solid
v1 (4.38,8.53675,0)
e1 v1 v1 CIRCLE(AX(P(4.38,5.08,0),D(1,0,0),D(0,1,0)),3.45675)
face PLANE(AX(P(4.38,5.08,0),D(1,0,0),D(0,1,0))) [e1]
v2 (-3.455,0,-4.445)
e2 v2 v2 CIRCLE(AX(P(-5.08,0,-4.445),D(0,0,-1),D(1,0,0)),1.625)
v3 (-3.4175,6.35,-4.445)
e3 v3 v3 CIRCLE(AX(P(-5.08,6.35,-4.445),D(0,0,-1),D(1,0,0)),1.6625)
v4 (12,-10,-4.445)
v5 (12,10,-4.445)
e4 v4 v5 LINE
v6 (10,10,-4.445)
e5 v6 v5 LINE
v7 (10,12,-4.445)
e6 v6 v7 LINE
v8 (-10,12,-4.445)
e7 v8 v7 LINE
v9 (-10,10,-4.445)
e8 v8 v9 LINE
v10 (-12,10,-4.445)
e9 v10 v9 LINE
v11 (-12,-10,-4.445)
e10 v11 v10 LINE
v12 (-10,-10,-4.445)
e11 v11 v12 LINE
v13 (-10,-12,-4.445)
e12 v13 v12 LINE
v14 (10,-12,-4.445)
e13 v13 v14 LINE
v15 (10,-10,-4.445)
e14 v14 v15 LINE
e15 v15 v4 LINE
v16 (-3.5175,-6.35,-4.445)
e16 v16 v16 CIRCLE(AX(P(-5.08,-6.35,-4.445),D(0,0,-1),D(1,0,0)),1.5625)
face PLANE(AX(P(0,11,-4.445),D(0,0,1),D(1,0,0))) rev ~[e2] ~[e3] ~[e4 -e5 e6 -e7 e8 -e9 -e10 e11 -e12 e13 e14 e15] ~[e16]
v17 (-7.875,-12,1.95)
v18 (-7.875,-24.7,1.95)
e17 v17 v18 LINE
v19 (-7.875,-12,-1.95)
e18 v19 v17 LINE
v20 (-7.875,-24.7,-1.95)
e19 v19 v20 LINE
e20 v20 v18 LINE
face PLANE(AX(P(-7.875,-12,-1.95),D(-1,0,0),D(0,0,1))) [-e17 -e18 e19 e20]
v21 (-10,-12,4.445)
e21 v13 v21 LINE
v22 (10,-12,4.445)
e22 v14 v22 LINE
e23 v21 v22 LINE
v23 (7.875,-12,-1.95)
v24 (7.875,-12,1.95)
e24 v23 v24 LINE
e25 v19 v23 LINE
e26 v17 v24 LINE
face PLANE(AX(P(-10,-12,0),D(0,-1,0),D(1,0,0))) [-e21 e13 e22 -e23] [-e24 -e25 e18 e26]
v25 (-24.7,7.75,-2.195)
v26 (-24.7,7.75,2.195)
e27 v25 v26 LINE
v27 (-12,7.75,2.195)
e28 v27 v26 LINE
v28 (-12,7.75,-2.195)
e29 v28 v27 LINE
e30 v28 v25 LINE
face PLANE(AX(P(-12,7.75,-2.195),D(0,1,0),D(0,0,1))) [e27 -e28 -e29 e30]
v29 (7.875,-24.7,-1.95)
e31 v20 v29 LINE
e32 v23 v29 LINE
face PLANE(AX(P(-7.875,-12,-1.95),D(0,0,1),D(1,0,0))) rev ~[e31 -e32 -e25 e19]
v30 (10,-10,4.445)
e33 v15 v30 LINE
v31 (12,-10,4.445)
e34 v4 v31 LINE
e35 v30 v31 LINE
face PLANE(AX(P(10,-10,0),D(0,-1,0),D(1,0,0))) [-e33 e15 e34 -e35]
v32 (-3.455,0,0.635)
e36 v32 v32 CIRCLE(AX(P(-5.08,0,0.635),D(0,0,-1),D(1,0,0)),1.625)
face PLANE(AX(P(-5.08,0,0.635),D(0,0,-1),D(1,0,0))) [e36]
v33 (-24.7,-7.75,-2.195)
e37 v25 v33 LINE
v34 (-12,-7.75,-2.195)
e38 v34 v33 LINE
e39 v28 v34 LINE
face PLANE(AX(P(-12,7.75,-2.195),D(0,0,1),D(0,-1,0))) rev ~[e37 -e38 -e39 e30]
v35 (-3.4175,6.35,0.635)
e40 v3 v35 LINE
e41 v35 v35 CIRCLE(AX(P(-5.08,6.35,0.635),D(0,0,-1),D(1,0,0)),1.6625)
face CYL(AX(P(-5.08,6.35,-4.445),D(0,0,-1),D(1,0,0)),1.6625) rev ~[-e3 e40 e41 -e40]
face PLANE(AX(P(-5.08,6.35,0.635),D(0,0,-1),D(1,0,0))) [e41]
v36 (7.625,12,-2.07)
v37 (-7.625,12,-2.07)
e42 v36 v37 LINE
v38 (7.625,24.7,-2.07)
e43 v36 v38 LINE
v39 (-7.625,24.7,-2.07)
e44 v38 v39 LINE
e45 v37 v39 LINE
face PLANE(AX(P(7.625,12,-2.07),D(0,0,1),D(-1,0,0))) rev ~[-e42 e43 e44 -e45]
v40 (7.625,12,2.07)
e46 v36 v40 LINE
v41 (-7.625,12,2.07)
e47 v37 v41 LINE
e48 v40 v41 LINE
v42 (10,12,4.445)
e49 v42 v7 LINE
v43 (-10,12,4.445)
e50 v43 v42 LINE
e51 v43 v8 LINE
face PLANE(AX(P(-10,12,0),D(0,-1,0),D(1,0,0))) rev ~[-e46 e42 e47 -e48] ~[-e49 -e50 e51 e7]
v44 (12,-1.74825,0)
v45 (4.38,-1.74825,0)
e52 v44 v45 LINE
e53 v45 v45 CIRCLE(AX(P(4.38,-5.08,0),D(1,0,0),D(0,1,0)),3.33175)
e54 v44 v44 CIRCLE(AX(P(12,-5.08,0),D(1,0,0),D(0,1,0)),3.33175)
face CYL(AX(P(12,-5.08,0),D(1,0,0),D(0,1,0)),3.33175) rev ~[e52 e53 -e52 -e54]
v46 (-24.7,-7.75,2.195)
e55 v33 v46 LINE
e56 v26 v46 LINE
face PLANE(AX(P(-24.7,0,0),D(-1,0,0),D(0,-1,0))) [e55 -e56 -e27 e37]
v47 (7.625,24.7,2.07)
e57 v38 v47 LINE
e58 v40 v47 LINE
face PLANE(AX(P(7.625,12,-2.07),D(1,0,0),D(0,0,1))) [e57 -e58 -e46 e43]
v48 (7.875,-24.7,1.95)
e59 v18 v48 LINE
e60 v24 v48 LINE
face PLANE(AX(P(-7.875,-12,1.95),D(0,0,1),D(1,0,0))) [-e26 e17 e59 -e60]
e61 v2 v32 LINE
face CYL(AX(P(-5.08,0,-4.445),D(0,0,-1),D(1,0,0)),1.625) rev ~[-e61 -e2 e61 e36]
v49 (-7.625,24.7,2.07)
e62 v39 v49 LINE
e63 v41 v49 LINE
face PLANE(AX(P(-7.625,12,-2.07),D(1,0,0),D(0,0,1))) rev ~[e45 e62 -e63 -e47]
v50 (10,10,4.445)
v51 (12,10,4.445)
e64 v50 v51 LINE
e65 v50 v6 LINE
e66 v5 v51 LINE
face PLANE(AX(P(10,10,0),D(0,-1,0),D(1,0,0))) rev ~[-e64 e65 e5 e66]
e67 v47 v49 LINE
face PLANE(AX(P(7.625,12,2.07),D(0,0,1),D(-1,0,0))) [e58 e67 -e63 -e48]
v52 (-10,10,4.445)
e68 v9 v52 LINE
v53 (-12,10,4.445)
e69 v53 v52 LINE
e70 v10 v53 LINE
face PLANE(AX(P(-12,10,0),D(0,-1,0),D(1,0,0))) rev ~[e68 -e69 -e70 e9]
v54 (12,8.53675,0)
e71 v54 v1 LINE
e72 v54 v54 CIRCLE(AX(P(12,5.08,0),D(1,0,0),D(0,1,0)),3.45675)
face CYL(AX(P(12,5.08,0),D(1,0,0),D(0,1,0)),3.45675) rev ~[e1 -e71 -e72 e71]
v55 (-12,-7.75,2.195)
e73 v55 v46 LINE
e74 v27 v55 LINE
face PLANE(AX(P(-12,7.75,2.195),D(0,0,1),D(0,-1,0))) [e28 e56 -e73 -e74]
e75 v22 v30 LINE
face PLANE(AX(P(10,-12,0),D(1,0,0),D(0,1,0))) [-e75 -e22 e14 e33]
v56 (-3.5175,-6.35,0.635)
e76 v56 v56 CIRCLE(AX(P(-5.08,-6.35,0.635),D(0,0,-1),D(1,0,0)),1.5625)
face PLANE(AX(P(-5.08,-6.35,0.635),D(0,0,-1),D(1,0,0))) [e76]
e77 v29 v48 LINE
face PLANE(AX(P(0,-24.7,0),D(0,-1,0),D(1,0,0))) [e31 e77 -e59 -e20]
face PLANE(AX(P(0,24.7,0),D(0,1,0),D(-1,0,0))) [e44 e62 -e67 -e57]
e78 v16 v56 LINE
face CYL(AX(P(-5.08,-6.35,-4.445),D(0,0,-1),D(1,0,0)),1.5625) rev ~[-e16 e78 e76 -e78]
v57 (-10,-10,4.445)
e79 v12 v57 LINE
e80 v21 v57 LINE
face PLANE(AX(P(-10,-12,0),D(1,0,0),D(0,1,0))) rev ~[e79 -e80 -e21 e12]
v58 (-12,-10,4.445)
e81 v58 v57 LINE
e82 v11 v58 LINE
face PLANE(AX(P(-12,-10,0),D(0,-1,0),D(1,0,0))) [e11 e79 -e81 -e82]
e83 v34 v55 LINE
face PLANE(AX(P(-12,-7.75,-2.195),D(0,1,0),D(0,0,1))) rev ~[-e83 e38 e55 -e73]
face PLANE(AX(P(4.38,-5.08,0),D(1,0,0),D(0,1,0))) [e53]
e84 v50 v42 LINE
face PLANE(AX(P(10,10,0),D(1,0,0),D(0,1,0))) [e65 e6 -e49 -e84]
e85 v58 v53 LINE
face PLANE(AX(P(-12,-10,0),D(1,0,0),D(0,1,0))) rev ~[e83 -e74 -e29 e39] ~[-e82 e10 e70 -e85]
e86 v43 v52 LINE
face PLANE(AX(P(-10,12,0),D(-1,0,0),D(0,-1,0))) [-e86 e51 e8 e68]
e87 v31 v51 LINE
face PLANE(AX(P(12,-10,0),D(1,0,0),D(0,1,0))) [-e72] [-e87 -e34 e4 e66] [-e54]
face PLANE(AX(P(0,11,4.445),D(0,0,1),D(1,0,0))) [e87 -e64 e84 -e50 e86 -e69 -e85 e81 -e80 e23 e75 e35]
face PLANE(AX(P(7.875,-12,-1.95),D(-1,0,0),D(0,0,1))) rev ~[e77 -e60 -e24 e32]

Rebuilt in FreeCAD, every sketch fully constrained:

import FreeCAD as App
import Part
import Sketcher
Q = App.Units.Quantity

doc = App.newDocument("Part")
params = doc.addObject("Spreadsheet::Sheet", "Params")
for row, (alias, value) in enumerate([
    ("sketch1_width", "2 mm"),
    ("sketch1_width2", "20 mm"),
    ("pad1_length", "8.89 mm"),
    ("sketch2_width", "15.5 mm"),
    ("sketch2_height", "4.39 mm"),
    ("pad2_length", "12.7 mm"),
    ("sketch3_height", "3.9 mm"),
    ("sketch3_width", "15.75 mm"),
    ("pad3_length", "12.7 mm"),
    ("sketch4_width", "15.25 mm"),
    ("sketch4_height", "4.14 mm"),
    ("pad4_length", "12.7 mm"),
    ("pocket1_length", "7.62 mm"),
    ("sketch6_diameter", "3.25 mm"),
    ("pocket2_length", "5.08 mm"),
], start=1):
    params.set(f"A{row}", alias)
    params.set(f"B{row}", "=" + value)
    params.setAlias(f"B{row}", alias)

body = doc.addObject("PartDesign::Body", "Body")

sketch1 = body.newObject("Sketcher::SketchObject", "Sketch")
sketch1.AttachmentSupport = (doc.getObject("XY_Plane"), [""])
sketch1.MapMode = "FlatFace"
sketch1.addGeometry([
    Part.LineSegment(App.Vector(-10, 12, 0), App.Vector(-10, 10, 0)),
    Part.LineSegment(App.Vector(-10, 10, 0), App.Vector(-12, 10, 0)),
    Part.LineSegment(App.Vector(-12, 10, 0), App.Vector(-12, -10, 0)),
    Part.LineSegment(App.Vector(-12, -10, 0), App.Vector(-10, -10, 0)),
    Part.LineSegment(App.Vector(-10, -10, 0), App.Vector(-10, -12, 0)),
    Part.LineSegment(App.Vector(-10, -12, 0), App.Vector(10, -12, 0)),
    Part.LineSegment(App.Vector(10, -12, 0), App.Vector(10, -10, 0)),
    Part.LineSegment(App.Vector(10, -10, 0), App.Vector(12, -10, 0)),
    Part.LineSegment(App.Vector(12, -10, 0), App.Vector(12, 10, 0)),
    Part.LineSegment(App.Vector(12, 10, 0), App.Vector(10, 10, 0)),
    Part.LineSegment(App.Vector(10, 10, 0), App.Vector(10, 12, 0)),
    Part.LineSegment(App.Vector(10, 12, 0), App.Vector(-10, 12, 0)),
], False)
sketch1.addConstraint([
    Sketcher.Constraint("Coincident", 0, 2, 1, 1),
    Sketcher.Constraint("Coincident", 1, 2, 2, 1),
    Sketcher.Constraint("Coincident", 2, 2, 3, 1),
    Sketcher.Constraint("Coincident", 3, 2, 4, 1),
    Sketcher.Constraint("Coincident", 4, 2, 5, 1),
    Sketcher.Constraint("Coincident", 5, 2, 6, 1),
    Sketcher.Constraint("Coincident", 6, 2, 7, 1),
    Sketcher.Constraint("Coincident", 7, 2, 8, 1),
    Sketcher.Constraint("Coincident", 8, 2, 9, 1),
    Sketcher.Constraint("Coincident", 9, 2, 10, 1),
    Sketcher.Constraint("Coincident", 10, 2, 11, 1),
    Sketcher.Constraint("Coincident", 11, 2, 0, 1),
    Sketcher.Constraint("Vertical", 0),
    Sketcher.Constraint("Horizontal", 1),
    Sketcher.Constraint("Vertical", 2),
    Sketcher.Constraint("Horizontal", 3),
    Sketcher.Constraint("Vertical", 4),
    Sketcher.Constraint("Horizontal", 5),
    Sketcher.Constraint("Vertical", 6),
    Sketcher.Constraint("Horizontal", 7),
    Sketcher.Constraint("Vertical", 8),
    Sketcher.Constraint("Horizontal", 9),
    Sketcher.Constraint("Vertical", 10),
    Sketcher.Constraint("Horizontal", 11),
    Sketcher.Constraint("Symmetric", 0, 2, 6, 2, -1, 1),
    Sketcher.Constraint("Symmetric", 2, 2, 8, 2, -1, 1),
    Sketcher.Constraint("Symmetric", 4, 2, 10, 2, -1, 1),
    Sketcher.Constraint("Symmetric", 3, 2, 6, 2, -2),
    Sketcher.Constraint("Equal", 9, 0),
    Sketcher.Constraint("Equal", 11, 2),
    Sketcher.Constraint("DistanceX", 1, 2, 1, 1, Q("2 mm")),
    Sketcher.Constraint("DistanceX", 5, 1, 5, 2, Q("20 mm")),
])
sketch1.setExpression("Constraints[30]", "Params.sketch1_width")
sketch1.setExpression("Constraints[31]", "Params.sketch1_width2")
pad1 = body.newObject("PartDesign::Pad", "Pad")
pad1.Profile = sketch1
pad1.setExpression("Length", "Params.pad1_length")
pad1.Midplane = True

sketch2 = body.newObject("Sketcher::SketchObject", "Sketch001")
sketch2.AttachmentSupport = (doc.getObject("YZ_Plane"), [""])
sketch2.MapMode = "FlatFace"
sketch2.AttachmentOffset = App.Placement(App.Vector(0, 0, -12), App.Rotation())
sketch2.addGeometry([
    Part.LineSegment(App.Vector(7.75, 2.195, 0), App.Vector(7.75, -2.195, 0)),
    Part.LineSegment(App.Vector(7.75, -2.195, 0), App.Vector(-7.75, -2.195, 0)),
    Part.LineSegment(App.Vector(-7.75, -2.195, 0), App.Vector(-7.75, 2.195, 0)),
    Part.LineSegment(App.Vector(-7.75, 2.195, 0), App.Vector(7.75, 2.195, 0)),
], False)
sketch2.addConstraint([
    Sketcher.Constraint("Coincident", 0, 2, 1, 1),
    Sketcher.Constraint("Coincident", 1, 2, 2, 1),
    Sketcher.Constraint("Coincident", 2, 2, 3, 1),
    Sketcher.Constraint("Coincident", 3, 2, 0, 1),
    Sketcher.Constraint("Vertical", 0),
    Sketcher.Constraint("Horizontal", 1),
    Sketcher.Constraint("Vertical", 2),
    Sketcher.Constraint("Horizontal", 3),
    Sketcher.Constraint("Symmetric", 0, 2, 2, 2, -1, 1),
    Sketcher.Constraint("DistanceX", 1, 2, 1, 1, Q("15.5 mm")),
    Sketcher.Constraint("DistanceY", 0, 2, 0, 1, Q("4.39 mm")),
])
sketch2.setExpression("Constraints[9]", "Params.sketch2_width")
sketch2.setExpression("Constraints[10]", "Params.sketch2_height")
pad2 = body.newObject("PartDesign::Pad", "Pad001")
pad2.Profile = sketch2
pad2.setExpression("Length", "Params.pad2_length")
pad2.Reversed = True

sketch3 = body.newObject("Sketcher::SketchObject", "Sketch002")
sketch3.AttachmentSupport = (doc.getObject("XZ_Plane"), [""])
sketch3.MapMode = "FlatFace"
sketch3.AttachmentOffset = App.Placement(App.Vector(0, 0, 12), App.Rotation())
sketch3.addGeometry([
    Part.LineSegment(App.Vector(-7.875, 1.95, 0), App.Vector(-7.875, -1.95, 0)),
    Part.LineSegment(App.Vector(-7.875, -1.95, 0), App.Vector(7.875, -1.95, 0)),
    Part.LineSegment(App.Vector(7.875, -1.95, 0), App.Vector(7.875, 1.95, 0)),
    Part.LineSegment(App.Vector(7.875, 1.95, 0), App.Vector(-7.875, 1.95, 0)),
], False)
sketch3.addConstraint([
    Sketcher.Constraint("Coincident", 0, 2, 1, 1),
    Sketcher.Constraint("Coincident", 1, 2, 2, 1),
    Sketcher.Constraint("Coincident", 2, 2, 3, 1),
    Sketcher.Constraint("Coincident", 3, 2, 0, 1),
    Sketcher.Constraint("Vertical", 0),
    Sketcher.Constraint("Horizontal", 1),
    Sketcher.Constraint("Vertical", 2),
    Sketcher.Constraint("Horizontal", 3),
    Sketcher.Constraint("Symmetric", 0, 2, 2, 2, -1, 1),
    Sketcher.Constraint("DistanceY", 0, 2, 0, 1, Q("3.9 mm")),
    Sketcher.Constraint("DistanceX", 1, 1, 1, 2, Q("15.75 mm")),
])
sketch3.setExpression("Constraints[9]", "Params.sketch3_height")
sketch3.setExpression("Constraints[10]", "Params.sketch3_width")
pad3 = body.newObject("PartDesign::Pad", "Pad002")
pad3.Profile = sketch3
pad3.setExpression("Length", "Params.pad3_length")

sketch4 = body.newObject("Sketcher::SketchObject", "Sketch003")
sketch4.AttachmentSupport = (doc.getObject("XZ_Plane"), [""])
sketch4.MapMode = "FlatFace"
sketch4.AttachmentOffset = App.Placement(App.Vector(0, 0, -12), App.Rotation())
sketch4.addGeometry([
    Part.LineSegment(App.Vector(7.625, 2.07, 0), App.Vector(7.625, -2.07, 0)),
    Part.LineSegment(App.Vector(7.625, -2.07, 0), App.Vector(-7.625, -2.07, 0)),
    Part.LineSegment(App.Vector(-7.625, -2.07, 0), App.Vector(-7.625, 2.07, 0)),
    Part.LineSegment(App.Vector(-7.625, 2.07, 0), App.Vector(7.625, 2.07, 0)),
], False)
sketch4.addConstraint([
    Sketcher.Constraint("Coincident", 0, 2, 1, 1),
    Sketcher.Constraint("Coincident", 1, 2, 2, 1),
    Sketcher.Constraint("Coincident", 2, 2, 3, 1),
    Sketcher.Constraint("Coincident", 3, 2, 0, 1),
    Sketcher.Constraint("Vertical", 0),
    Sketcher.Constraint("Horizontal", 1),
    Sketcher.Constraint("Vertical", 2),
    Sketcher.Constraint("Horizontal", 3),
    Sketcher.Constraint("Symmetric", 0, 2, 2, 2, -1, 1),
    Sketcher.Constraint("DistanceX", 1, 2, 1, 1, Q("15.25 mm")),
    Sketcher.Constraint("DistanceY", 0, 2, 0, 1, Q("4.14 mm")),
])
sketch4.setExpression("Constraints[9]", "Params.sketch4_width")
sketch4.setExpression("Constraints[10]", "Params.sketch4_height")
pad4 = body.newObject("PartDesign::Pad", "Pad003")
pad4.Profile = sketch4
pad4.setExpression("Length", "Params.pad4_length")
pad4.Reversed = True

sketch5 = body.newObject("Sketcher::SketchObject", "Sketch004")
sketch5.AttachmentSupport = (doc.getObject("YZ_Plane"), [""])
sketch5.MapMode = "FlatFace"
sketch5.AttachmentOffset = App.Placement(App.Vector(0, 0, 12), App.Rotation())
sketch5.addGeometry([
    Part.Circle(App.Vector(-5.08, 0, 0), App.Vector(0, 0, 1), 3.33175),
    Part.Circle(App.Vector(5.08, 0, 0), App.Vector(0, 0, 1), 3.45675),
], False)
sketch5.addConstraint([
    Sketcher.Constraint("Symmetric", 0, 3, 1, 3, -1, 1),
    Sketcher.Constraint("PointOnObject", 0, 3, -1),
    Sketcher.Constraint("Diameter", 0, Q("6.6635 mm")),
    Sketcher.Constraint("Diameter", 1, Q("6.9135 mm")),
    Sketcher.Constraint("DistanceX", 0, 3, -1, 1, Q("5.08 mm")),
])
pocket1 = body.newObject("PartDesign::Pocket", "Pocket")
pocket1.Profile = sketch5
pocket1.setExpression("Length", "Params.pocket1_length")

sketch6 = body.newObject("Sketcher::SketchObject", "Sketch005")
sketch6.AttachmentSupport = (doc.getObject("XY_Plane"), [""])
sketch6.MapMode = "FlatFace"
sketch6.AttachmentOffset = App.Placement(App.Vector(0, 0, -4.445), App.Rotation())
sketch6.addGeometry([
    Part.Circle(App.Vector(-5.08, 6.35, 0), App.Vector(0, 0, 1), 1.6625),
    Part.Circle(App.Vector(-5.08, 0, 0), App.Vector(0, 0, 1), 1.625),
    Part.Circle(App.Vector(-5.08, -6.35, 0), App.Vector(0, 0, 1), 1.5625),
], False)
sketch6.addConstraint([
    Sketcher.Constraint("Symmetric", 0, 3, 2, 3, -1),
    Sketcher.Constraint("PointOnObject", 1, 3, -1),
    Sketcher.Constraint("Vertical", 0, 3, 1, 3),
    Sketcher.Constraint("Diameter", 1, Q("3.25 mm")),
    Sketcher.Constraint("Diameter", 0, Q("3.325 mm")),
    Sketcher.Constraint("Diameter", 2, Q("3.125 mm")),
    Sketcher.Constraint("DistanceY", 2, 3, 0, 3, Q("12.7 mm")),
    Sketcher.Constraint("DistanceX", 0, 3, -1, 1, Q("5.08 mm")),
])
sketch6.setExpression("Constraints[3]", "Params.sketch6_diameter")
pocket2 = body.newObject("PartDesign::Pocket", "Pocket001")
pocket2.Profile = sketch6
pocket2.setExpression("Length", "Params.pocket2_length")
pocket2.Reversed = True

doc.recompute()
